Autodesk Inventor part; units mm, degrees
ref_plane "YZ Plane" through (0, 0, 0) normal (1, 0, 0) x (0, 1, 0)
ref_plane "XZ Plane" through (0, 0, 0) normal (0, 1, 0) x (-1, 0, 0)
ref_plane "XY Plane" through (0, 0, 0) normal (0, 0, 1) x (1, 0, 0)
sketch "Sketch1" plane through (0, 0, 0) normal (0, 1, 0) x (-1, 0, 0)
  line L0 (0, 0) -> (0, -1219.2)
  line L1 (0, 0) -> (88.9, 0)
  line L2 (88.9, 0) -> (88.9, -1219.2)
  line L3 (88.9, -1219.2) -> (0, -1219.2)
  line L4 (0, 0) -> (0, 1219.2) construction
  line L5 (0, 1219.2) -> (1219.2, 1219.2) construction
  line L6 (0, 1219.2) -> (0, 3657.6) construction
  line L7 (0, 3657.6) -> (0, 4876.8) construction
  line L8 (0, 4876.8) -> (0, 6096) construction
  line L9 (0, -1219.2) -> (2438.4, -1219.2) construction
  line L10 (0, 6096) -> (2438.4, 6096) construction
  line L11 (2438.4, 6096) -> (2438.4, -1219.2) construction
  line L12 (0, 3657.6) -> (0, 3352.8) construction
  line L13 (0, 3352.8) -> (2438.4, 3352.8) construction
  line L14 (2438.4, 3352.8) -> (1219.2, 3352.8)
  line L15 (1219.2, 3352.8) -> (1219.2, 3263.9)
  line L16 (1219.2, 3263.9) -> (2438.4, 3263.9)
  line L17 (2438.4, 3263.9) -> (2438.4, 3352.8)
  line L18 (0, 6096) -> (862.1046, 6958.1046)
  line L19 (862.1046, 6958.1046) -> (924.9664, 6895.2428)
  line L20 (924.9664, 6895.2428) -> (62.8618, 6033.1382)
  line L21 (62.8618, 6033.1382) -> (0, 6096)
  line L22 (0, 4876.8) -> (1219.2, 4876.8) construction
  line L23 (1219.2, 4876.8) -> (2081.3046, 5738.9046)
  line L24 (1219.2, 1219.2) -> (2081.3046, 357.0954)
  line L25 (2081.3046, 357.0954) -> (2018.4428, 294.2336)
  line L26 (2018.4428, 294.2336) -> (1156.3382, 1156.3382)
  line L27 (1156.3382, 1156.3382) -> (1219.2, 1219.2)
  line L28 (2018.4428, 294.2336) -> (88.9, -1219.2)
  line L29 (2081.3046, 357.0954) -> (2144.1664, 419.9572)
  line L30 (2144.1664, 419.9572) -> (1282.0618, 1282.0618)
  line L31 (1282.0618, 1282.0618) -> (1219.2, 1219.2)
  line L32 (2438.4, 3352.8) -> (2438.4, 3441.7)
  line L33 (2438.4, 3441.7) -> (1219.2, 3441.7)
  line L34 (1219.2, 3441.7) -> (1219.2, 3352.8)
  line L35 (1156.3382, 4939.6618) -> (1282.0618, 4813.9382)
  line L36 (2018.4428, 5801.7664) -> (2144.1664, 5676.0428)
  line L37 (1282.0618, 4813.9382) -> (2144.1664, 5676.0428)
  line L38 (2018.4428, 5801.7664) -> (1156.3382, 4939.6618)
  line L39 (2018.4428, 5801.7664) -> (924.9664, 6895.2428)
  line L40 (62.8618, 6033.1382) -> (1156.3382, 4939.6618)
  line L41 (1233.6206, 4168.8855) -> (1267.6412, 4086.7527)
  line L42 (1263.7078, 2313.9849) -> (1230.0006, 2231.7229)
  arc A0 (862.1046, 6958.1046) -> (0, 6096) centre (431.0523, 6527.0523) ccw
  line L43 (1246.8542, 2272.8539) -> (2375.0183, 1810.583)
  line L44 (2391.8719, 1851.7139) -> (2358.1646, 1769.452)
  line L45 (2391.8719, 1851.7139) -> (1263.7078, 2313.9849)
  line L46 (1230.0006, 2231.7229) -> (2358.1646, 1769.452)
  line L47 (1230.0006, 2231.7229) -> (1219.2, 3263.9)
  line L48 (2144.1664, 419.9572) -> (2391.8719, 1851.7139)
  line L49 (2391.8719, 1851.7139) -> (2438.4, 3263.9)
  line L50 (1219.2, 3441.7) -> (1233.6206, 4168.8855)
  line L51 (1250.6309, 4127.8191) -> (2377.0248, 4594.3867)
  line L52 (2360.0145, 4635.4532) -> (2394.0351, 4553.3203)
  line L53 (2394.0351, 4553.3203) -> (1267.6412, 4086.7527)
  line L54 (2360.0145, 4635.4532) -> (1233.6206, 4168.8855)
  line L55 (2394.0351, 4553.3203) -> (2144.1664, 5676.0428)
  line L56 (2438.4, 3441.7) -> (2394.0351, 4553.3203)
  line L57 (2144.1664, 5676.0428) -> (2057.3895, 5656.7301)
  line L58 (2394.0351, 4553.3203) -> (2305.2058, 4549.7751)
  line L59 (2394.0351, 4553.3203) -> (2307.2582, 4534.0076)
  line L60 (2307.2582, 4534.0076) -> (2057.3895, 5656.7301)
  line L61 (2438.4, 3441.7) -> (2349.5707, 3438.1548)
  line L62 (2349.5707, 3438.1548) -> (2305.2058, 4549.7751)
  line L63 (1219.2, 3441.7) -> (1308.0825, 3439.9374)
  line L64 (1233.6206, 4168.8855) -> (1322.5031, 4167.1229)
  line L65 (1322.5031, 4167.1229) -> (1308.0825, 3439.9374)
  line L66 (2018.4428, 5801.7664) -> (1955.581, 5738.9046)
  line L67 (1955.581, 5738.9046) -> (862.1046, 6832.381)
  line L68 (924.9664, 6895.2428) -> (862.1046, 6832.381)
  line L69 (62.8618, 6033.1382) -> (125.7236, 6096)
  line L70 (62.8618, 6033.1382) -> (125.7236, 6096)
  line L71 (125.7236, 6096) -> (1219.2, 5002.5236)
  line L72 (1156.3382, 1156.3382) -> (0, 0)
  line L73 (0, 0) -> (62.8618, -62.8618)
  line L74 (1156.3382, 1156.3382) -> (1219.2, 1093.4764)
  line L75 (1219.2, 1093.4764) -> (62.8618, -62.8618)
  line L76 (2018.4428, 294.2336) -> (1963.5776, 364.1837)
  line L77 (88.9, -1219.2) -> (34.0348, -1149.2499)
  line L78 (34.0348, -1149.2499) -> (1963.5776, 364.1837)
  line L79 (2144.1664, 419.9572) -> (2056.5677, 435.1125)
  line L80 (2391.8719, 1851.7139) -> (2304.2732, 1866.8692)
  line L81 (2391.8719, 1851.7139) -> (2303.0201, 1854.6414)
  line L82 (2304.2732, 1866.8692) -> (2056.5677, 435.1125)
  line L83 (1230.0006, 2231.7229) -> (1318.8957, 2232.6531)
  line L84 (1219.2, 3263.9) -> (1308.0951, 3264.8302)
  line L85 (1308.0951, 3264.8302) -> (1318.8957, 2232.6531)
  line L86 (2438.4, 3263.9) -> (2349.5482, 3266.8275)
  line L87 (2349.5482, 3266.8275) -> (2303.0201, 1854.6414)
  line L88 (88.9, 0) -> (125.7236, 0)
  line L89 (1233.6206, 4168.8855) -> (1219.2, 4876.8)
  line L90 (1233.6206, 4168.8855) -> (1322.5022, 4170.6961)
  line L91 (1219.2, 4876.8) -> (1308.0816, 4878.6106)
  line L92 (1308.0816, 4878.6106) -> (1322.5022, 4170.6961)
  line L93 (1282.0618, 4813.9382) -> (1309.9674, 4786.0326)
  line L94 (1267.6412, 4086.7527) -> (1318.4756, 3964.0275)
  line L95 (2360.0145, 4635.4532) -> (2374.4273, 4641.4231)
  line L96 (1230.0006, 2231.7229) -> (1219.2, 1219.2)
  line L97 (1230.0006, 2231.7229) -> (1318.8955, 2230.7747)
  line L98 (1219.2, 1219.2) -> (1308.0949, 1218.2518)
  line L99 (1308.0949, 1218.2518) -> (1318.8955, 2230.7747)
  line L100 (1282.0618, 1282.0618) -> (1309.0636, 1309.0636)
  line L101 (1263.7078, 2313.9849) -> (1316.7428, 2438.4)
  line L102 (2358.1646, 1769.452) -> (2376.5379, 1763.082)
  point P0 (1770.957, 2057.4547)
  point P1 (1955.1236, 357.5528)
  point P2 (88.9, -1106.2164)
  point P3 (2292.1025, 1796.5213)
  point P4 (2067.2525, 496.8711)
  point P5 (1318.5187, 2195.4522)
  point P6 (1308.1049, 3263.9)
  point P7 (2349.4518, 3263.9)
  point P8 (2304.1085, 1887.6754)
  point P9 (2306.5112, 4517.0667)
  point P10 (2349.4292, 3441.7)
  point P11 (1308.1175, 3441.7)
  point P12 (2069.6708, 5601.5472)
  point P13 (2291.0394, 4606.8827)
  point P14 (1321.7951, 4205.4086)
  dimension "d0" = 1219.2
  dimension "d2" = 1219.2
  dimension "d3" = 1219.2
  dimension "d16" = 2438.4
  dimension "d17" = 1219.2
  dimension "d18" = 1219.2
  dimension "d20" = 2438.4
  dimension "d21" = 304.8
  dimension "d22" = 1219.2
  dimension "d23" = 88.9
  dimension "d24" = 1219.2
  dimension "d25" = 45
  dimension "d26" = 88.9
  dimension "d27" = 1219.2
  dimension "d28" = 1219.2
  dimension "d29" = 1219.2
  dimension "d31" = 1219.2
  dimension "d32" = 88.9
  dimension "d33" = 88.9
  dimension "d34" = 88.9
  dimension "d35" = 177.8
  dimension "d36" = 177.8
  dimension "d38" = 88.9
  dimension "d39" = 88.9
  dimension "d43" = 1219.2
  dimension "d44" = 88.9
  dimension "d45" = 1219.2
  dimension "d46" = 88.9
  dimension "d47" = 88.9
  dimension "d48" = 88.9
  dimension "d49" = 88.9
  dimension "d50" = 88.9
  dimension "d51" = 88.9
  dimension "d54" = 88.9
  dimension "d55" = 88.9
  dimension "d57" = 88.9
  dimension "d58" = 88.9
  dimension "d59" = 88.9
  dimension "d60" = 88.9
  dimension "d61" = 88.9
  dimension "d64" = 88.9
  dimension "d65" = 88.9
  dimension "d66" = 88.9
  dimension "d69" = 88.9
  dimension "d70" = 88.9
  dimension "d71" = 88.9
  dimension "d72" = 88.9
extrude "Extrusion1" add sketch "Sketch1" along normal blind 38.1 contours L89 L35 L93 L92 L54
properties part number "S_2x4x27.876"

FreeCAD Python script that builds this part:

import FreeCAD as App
import Part
import Sketcher

V = App.Vector
Q = App.Units.Quantity


def add_polygon(sketch, points):
    """Adds a closed chain of lines whose ends are joined by coincident constraints."""
    first, n = sketch.GeometryCount, len(points)
    for a, b in zip(points, points[1:] + points[:1]):
        sketch.addGeometry(Part.LineSegment(App.Vector(*a, 0), App.Vector(*b, 0)), False)
    for i in range(n):
        sketch.addConstraint(Sketcher.Constraint("Coincident", first + i, 2, first + (i + 1) % n, 1))

doc = App.newDocument("Part")
params = doc.addObject("Spreadsheet::Sheet", "Params")
for row, (alias, value) in enumerate([
    ("pad1_length", "1.5 in"),
], start=1):
    params.set(f"A{row}", alias)
    params.set(f"B{row}", "=" + value)
    params.setAlias(f"B{row}", alias)

body = doc.addObject("PartDesign::Body", "Body")

# Sketch on XZ plane
sketch1 = body.newObject("Sketcher::SketchObject", "Sketch")
sketch1.AttachmentSupport = (doc.getObject("XZ_Plane"), [""])
sketch1.MapMode = "FlatFace"
add_polygon(sketch1, [(-1219, 4877), (-1234, 4169), (-1322, 4205), (-1310, 4786)])  # lines 0-3
sketch1.addConstraint([
    Sketcher.Constraint("Parallel", 0, 2),
    Sketcher.Constraint("DistanceX", 3, 2, -1, 1, Q("48 in")),
    Sketcher.Constraint("Angle", 3, Q("45 deg")),
    Sketcher.Constraint("DistanceY", -1, 1, 3, 2, Q("192 in")),
    Sketcher.Constraint("Angle", 1, Q("157.5 deg")),
    Sketcher.Constraint("Distance", 0, 708.0614),
    Sketcher.Constraint("Distance", 1, 95.4394),
    Sketcher.Constraint("Distance", 2, 580.7445),
])
pad1 = body.newObject("PartDesign::Pad", "Pad")
pad1.Profile = sketch1
pad1.setExpression("Length", "Params.pad1_length")
pad1.Reversed = True

doc.recompute()
